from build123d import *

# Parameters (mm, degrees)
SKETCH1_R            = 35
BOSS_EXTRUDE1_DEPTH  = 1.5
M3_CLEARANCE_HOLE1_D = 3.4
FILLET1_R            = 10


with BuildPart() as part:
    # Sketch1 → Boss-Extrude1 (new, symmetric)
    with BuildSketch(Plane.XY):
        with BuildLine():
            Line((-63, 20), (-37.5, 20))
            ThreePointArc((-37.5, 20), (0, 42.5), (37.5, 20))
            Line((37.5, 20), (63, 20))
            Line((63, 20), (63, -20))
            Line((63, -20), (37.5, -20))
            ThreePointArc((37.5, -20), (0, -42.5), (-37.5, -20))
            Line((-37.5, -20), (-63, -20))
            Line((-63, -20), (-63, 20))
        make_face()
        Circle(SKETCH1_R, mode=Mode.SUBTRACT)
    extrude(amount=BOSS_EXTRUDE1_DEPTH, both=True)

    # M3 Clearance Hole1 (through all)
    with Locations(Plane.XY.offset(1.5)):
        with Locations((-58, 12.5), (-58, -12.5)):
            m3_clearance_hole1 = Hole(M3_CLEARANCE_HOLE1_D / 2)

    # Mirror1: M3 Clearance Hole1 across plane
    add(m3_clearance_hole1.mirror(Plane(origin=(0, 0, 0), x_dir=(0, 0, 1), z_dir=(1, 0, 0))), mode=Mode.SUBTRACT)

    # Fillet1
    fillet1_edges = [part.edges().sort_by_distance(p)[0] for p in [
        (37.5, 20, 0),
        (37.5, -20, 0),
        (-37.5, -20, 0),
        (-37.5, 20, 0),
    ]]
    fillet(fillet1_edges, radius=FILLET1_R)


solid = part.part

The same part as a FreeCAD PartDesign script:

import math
import FreeCAD as App
import Part
import Sketcher


def edges_at(feature, points):
    """Names of the edges that pass closest to the given points."""
    edges = feature.Shape.Edges
    near = lambda p: min(range(len(edges)), key=lambda i: edges[i].distToShape(Part.Vertex(*p))[0])
    return sorted({f"Edge{near(p) + 1}" for p in points})

doc = App.newDocument("Part")
body = doc.addObject("PartDesign::Body", "Body")

# Sketch on XY plane
sketch1 = body.newObject("Sketcher::SketchObject", "Sketch")
sketch1.AttachmentSupport = (doc.getObject("XY_Plane"), [""])
sketch1.MapMode = "FlatFace"
sketch1.addGeometry(Part.LineSegment(App.Vector(-37.5, 20, 0), App.Vector(-63, 20, 0)), False)
sketch1.addGeometry(Part.LineSegment(App.Vector(-63, 20, 0), App.Vector(-63, -20, 0)), False)
sketch1.addGeometry(Part.LineSegment(App.Vector(-63, -20, 0), App.Vector(-37.5, -20, 0)), False)
sketch1.addGeometry(Part.ArcOfCircle(Part.Circle(App.Vector(0, 0, 0), App.Vector(0, 0, 1), 42.5), math.radians(-151.927513), math.radians(-28.072487)), False)
sketch1.addGeometry(Part.LineSegment(App.Vector(37.5, -20, 0), App.Vector(63, -20, 0)), False)
sketch1.addGeometry(Part.LineSegment(App.Vector(63, -20, 0), App.Vector(63, 20, 0)), False)
sketch1.addGeometry(Part.LineSegment(App.Vector(63, 20, 0), App.Vector(37.5, 20, 0)), False)
sketch1.addGeometry(Part.ArcOfCircle(Part.Circle(App.Vector(0, 0, 0), App.Vector(0, 0, 1), 42.5), math.radians(28.072487), math.radians(151.927513)), False)
sketch1.addGeometry(Part.Circle(App.Vector(0, 0, 0), App.Vector(0, 0, 1), 35), False)
sketch1.addConstraint(Sketcher.Constraint("Coincident", 0, 2, 1, 1))
sketch1.addConstraint(Sketcher.Constraint("Coincident", 1, 2, 2, 1))
sketch1.addConstraint(Sketcher.Constraint("Coincident", 2, 2, 3, 1))
sketch1.addConstraint(Sketcher.Constraint("Coincident", 3, 2, 4, 1))
sketch1.addConstraint(Sketcher.Constraint("Coincident", 4, 2, 5, 1))
sketch1.addConstraint(Sketcher.Constraint("Coincident", 5, 2, 6, 1))
sketch1.addConstraint(Sketcher.Constraint("Coincident", 6, 2, 7, 1))
sketch1.addConstraint(Sketcher.Constraint("Coincident", 7, 2, 0, 1))
sketch1.addConstraint(Sketcher.Constraint("Horizontal", 0))
sketch1.addConstraint(Sketcher.Constraint("Vertical", 1))
sketch1.addConstraint(Sketcher.Constraint("Horizontal", 2))
sketch1.addConstraint(Sketcher.Constraint("Horizontal", 4))
sketch1.addConstraint(Sketcher.Constraint("Vertical", 5))
sketch1.addConstraint(Sketcher.Constraint("Horizontal", 6))
sketch1.addConstraint(Sketcher.Constraint("Coincident", 3, 3, -1, 1))
sketch1.addConstraint(Sketcher.Constraint("Coincident", 7, 3, -1, 1))
sketch1.addConstraint(Sketcher.Constraint("Coincident", 8, 3, -1, 1))
sketch1.addConstraint(Sketcher.Constraint("Equal", 3, 7))
sketch1.addConstraint(Sketcher.Constraint("Symmetric", 0, 2, 4, 2, -1, 1))
sketch1.addConstraint(Sketcher.Constraint("Horizontal", 2, 2, 3, 2))
sketch1.addConstraint(Sketcher.Constraint("Horizontal", 0, 2, 5, 2))
sketch1.addConstraint(Sketcher.Constraint("Diameter", 8, 70.0))
sketch1.addConstraint(Sketcher.Constraint("Radius", 3, 42.5))
sketch1.addConstraint(Sketcher.Constraint("DistanceY", 1, 2, 1, 1, 40.0))
sketch1.addConstraint(Sketcher.Constraint("DistanceX", 0, 2, 0, 1, 25.5))
pad1 = body.newObject("PartDesign::Pad", "Pad")
pad1.Profile = sketch1
pad1.Length = 3
pad1.Midplane = True

# Sketch on XY plane
sketch2 = body.newObject("Sketcher::SketchObject", "Sketch001")
sketch2.AttachmentSupport = (doc.getObject("XY_Plane"), [""])
sketch2.MapMode = "FlatFace"
sketch2.AttachmentOffset = App.Placement(App.Vector(0, 0, 1.5), App.Rotation())
sketch2.addGeometry(Part.Circle(App.Vector(-58, 12.5, 0), App.Vector(0, 0, 1), 1.7), False)
sketch2.addGeometry(Part.Circle(App.Vector(-58, -12.5, 0), App.Vector(0, 0, 1), 1.7), False)
sketch2.addConstraint(Sketcher.Constraint("Equal", 0, 1))
sketch2.addConstraint(Sketcher.Constraint("Symmetric", 0, 3, 1, 3, -1))
sketch2.addConstraint(Sketcher.Constraint("Diameter", 0, 3.4))
sketch2.addConstraint(Sketcher.Constraint("DistanceX", 0, 3, -1, 1, 58.0))
sketch2.addConstraint(Sketcher.Constraint("DistanceY", 1, 3, 0, 3, 25.0))
doc.recompute()
hole = body.newObject("PartDesign::Hole", "Hole")
hole.Profile = sketch2
hole.ThreadType = "None"
hole.Diameter = 3.4
hole.DepthType = "ThroughAll"
doc.recompute()

mirrored = body.newObject("PartDesign::Mirrored", "Mirrored")
mirrored.Originals = [hole]
mirrored.MirrorPlane = (doc.getObject("YZ_Plane"), [""])
body.Tip = mirrored
doc.recompute()

fillet = body.newObject("PartDesign::Fillet", "Fillet")
fillet.Base = (mirrored, edges_at(mirrored, [
    (37.5, 20, 0),
    (37.5, -20, 0),
    (-37.5, -20, 0),
    (-37.5, 20, 0),
]))
fillet.Radius = 10

doc.recompute()
